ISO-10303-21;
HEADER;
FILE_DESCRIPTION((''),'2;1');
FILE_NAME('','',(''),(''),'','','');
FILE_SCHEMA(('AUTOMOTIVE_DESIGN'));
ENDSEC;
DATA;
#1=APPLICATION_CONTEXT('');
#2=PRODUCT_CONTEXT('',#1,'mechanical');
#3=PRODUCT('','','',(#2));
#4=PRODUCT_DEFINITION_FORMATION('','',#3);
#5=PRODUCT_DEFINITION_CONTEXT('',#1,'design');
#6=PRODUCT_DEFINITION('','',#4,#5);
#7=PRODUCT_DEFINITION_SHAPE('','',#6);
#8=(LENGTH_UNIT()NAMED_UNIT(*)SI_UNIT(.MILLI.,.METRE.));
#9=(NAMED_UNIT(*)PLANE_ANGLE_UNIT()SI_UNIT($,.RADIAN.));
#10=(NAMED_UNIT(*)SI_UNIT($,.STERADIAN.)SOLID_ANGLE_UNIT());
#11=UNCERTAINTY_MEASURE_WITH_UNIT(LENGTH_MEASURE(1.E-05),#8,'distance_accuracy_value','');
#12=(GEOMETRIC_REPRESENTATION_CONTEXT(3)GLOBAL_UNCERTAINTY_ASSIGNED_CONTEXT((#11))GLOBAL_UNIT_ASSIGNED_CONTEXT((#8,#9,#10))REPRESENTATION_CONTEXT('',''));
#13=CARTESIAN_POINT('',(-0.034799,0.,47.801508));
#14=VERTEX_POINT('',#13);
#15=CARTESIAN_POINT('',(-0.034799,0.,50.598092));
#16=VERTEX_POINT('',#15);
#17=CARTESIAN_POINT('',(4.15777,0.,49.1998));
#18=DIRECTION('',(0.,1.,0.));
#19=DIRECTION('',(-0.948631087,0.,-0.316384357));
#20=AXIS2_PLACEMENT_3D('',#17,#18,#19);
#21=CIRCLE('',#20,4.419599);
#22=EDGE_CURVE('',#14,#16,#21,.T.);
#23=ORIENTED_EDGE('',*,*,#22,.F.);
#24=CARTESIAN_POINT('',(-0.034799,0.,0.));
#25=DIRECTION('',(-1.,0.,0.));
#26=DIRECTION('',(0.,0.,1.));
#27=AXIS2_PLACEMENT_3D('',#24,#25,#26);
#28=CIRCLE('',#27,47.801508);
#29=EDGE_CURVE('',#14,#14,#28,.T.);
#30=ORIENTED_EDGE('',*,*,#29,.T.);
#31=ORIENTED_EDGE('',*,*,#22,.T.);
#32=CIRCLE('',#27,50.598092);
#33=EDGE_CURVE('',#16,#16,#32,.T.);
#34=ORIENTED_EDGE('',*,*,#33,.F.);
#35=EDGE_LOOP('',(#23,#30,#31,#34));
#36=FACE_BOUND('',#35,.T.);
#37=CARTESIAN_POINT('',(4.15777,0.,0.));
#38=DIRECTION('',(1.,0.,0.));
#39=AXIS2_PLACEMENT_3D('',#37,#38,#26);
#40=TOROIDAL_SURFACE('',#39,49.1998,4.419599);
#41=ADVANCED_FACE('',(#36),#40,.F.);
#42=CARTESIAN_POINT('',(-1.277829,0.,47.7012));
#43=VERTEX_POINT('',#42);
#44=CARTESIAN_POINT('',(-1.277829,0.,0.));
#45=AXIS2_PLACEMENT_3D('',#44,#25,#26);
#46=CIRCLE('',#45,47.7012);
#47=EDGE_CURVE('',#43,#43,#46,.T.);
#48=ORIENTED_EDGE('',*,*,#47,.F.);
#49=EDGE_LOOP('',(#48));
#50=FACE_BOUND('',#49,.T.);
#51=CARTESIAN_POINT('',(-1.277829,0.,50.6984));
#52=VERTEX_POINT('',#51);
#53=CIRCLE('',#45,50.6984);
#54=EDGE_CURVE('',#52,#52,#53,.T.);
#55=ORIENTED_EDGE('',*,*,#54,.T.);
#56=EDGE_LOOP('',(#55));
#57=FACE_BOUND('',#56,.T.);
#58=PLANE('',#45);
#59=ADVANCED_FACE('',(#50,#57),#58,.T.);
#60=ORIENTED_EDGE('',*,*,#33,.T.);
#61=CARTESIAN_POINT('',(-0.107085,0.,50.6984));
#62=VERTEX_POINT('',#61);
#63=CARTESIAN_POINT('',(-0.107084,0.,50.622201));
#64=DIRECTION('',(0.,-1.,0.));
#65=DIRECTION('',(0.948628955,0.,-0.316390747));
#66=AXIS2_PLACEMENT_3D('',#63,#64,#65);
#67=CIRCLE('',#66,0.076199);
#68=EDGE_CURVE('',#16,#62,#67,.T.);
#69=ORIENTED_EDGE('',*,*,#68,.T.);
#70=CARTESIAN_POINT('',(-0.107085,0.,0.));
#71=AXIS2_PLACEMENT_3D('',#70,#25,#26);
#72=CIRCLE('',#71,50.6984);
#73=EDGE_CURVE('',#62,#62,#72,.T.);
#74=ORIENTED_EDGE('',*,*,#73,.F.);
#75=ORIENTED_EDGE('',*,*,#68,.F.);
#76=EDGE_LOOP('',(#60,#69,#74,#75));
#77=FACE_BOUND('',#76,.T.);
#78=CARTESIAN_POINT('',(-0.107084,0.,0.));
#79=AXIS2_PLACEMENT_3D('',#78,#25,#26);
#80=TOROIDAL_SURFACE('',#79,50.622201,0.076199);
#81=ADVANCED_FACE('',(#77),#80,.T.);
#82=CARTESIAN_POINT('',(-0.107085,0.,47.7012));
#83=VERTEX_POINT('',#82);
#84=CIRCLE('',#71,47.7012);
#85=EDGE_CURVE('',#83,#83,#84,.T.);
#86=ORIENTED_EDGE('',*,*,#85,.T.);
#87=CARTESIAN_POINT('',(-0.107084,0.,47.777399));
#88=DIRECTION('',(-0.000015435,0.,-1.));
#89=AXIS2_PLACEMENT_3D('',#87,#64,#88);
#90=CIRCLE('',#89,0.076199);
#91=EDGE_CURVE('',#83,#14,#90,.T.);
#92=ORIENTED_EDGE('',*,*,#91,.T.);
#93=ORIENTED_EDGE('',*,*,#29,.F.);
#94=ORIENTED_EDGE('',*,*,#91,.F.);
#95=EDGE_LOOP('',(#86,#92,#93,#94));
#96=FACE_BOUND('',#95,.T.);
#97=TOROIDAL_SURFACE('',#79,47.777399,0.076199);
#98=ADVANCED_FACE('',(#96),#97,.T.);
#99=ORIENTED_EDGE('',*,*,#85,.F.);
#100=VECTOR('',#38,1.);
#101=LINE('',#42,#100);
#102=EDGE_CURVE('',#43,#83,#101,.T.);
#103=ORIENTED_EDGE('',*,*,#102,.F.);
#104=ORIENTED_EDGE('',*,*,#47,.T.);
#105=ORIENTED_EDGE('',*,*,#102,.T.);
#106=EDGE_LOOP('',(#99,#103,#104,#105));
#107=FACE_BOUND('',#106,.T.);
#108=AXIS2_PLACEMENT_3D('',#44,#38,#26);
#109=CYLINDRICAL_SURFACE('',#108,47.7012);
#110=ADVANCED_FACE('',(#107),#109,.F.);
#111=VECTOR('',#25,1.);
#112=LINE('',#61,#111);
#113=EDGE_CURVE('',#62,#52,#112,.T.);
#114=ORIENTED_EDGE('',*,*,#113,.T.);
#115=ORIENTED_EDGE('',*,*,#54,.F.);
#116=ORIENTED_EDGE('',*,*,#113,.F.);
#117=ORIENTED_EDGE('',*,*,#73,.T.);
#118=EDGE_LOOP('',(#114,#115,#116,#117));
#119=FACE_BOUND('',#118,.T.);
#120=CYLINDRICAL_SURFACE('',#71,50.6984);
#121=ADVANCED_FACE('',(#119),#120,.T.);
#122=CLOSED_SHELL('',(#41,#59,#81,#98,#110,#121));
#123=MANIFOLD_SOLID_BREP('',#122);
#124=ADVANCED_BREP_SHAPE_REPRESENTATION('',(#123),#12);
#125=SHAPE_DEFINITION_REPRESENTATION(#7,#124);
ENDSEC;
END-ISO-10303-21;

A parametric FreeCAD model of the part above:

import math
import FreeCAD as App
import Part
import Sketcher
from FreeCAD import Vector
Q = App.Units.Quantity

doc = App.newDocument("Part")
params = doc.addObject("Spreadsheet::Sheet", "Params")
for row, (alias, value) in enumerate([
    ("sketch1_radius", "0.003 in"),
    ("sketch1_radius2", "0.174 in"),
    ("sketch1_height", "0.118 in"),
    ("revolution_angle", "360 deg"),
], start=1):
    params.set(f"A{row}", alias)
    params.set(f"B{row}", "=" + value)
    params.setAlias(f"B{row}", alias)

body = doc.addObject("PartDesign::Body", "Body")

# Sketch on XZ plane
sketch1 = body.newObject("Sketcher::SketchObject", "Sketch")
sketch1.AttachmentSupport = (doc.getObject("XZ_Plane"), [""])
sketch1.MapMode = "FlatFace"
sketch1.addGeometry([
    Part.ArcOfCircle(Part.Circle(Vector(-0.11, 50.62, 0), Vector(0, 0, 1), 0.08), math.radians(-18), math.radians(90)),  # 0
    Part.LineSegment(Vector(-0.11, 50.7, 0), Vector(-1.28, 50.7, 0)),  # 1
    Part.LineSegment(Vector(-1.28, 50.7, 0), Vector(-1.28, 47.7, 0)),  # 2
    Part.LineSegment(Vector(-1.28, 47.7, 0), Vector(-0.11, 47.7, 0)),  # 3
    Part.ArcOfCircle(Part.Circle(Vector(-0.11, 47.78, 0), Vector(0, 0, 1), 0.08), math.radians(-90), math.radians(18)),  # 4
    Part.ArcOfCircle(Part.Circle(Vector(4.16, 49.2, 0), Vector(0, 0, 1), 4.42), math.radians(162), math.radians(198)),  # 5
], False)
sketch1.addConstraint([
    Sketcher.Constraint("Coincident", 0, 2, 1, 1),
    Sketcher.Constraint("Coincident", 1, 2, 2, 1),
    Sketcher.Constraint("Coincident", 2, 2, 3, 1),
    Sketcher.Constraint("Coincident", 3, 2, 4, 1),
    Sketcher.Constraint("Coincident", 4, 2, 5, 2),
    Sketcher.Constraint("Coincident", 5, 1, 0, 1),
    Sketcher.Constraint("Horizontal", 1),
    Sketcher.Constraint("Vertical", 2),
    Sketcher.Constraint("Horizontal", 3),
    Sketcher.Constraint("Equal", 0, 4),
    Sketcher.Constraint("Vertical", 0, 3, 4, 3),
    Sketcher.Constraint("Vertical", 4, 3, 0, 2),
    Sketcher.Constraint("Vertical", 0, 2, 3, 2),
    Sketcher.Constraint("Vertical", 4, 2, 5, 1),
    Sketcher.Constraint("Radius", 0, Q("0.003 in")),
    Sketcher.Constraint("Radius", 5, Q("0.174 in")),
    Sketcher.Constraint("DistanceY", 2, 2, 2, 1, Q("0.118 in")),
    Sketcher.Constraint("DistanceY", -1, 1, 0, 3, Q("1.993 in")),
    Sketcher.Constraint("DistanceX", 1, 2, 5, 3, Q("0.214 in")),
    Sketcher.Constraint("DistanceX", 4, 2, -1, 1, Q("0.034799 mm")),
    Sketcher.Constraint("DistanceX", -1, 1, 5, 3, Q("4.15777 mm")),
])
sketch1.setExpression("Constraints[14]", "Params.sketch1_radius")
sketch1.setExpression("Constraints[15]", "Params.sketch1_radius2")
sketch1.setExpression("Constraints[16]", "Params.sketch1_height")
revolution = body.newObject("PartDesign::Revolution", "Revolution")
revolution.Profile = sketch1
revolution.ReferenceAxis = (sketch1, ["H_Axis"])
revolution.setExpression("Angle", "Params.revolution_angle")

doc.recompute()
